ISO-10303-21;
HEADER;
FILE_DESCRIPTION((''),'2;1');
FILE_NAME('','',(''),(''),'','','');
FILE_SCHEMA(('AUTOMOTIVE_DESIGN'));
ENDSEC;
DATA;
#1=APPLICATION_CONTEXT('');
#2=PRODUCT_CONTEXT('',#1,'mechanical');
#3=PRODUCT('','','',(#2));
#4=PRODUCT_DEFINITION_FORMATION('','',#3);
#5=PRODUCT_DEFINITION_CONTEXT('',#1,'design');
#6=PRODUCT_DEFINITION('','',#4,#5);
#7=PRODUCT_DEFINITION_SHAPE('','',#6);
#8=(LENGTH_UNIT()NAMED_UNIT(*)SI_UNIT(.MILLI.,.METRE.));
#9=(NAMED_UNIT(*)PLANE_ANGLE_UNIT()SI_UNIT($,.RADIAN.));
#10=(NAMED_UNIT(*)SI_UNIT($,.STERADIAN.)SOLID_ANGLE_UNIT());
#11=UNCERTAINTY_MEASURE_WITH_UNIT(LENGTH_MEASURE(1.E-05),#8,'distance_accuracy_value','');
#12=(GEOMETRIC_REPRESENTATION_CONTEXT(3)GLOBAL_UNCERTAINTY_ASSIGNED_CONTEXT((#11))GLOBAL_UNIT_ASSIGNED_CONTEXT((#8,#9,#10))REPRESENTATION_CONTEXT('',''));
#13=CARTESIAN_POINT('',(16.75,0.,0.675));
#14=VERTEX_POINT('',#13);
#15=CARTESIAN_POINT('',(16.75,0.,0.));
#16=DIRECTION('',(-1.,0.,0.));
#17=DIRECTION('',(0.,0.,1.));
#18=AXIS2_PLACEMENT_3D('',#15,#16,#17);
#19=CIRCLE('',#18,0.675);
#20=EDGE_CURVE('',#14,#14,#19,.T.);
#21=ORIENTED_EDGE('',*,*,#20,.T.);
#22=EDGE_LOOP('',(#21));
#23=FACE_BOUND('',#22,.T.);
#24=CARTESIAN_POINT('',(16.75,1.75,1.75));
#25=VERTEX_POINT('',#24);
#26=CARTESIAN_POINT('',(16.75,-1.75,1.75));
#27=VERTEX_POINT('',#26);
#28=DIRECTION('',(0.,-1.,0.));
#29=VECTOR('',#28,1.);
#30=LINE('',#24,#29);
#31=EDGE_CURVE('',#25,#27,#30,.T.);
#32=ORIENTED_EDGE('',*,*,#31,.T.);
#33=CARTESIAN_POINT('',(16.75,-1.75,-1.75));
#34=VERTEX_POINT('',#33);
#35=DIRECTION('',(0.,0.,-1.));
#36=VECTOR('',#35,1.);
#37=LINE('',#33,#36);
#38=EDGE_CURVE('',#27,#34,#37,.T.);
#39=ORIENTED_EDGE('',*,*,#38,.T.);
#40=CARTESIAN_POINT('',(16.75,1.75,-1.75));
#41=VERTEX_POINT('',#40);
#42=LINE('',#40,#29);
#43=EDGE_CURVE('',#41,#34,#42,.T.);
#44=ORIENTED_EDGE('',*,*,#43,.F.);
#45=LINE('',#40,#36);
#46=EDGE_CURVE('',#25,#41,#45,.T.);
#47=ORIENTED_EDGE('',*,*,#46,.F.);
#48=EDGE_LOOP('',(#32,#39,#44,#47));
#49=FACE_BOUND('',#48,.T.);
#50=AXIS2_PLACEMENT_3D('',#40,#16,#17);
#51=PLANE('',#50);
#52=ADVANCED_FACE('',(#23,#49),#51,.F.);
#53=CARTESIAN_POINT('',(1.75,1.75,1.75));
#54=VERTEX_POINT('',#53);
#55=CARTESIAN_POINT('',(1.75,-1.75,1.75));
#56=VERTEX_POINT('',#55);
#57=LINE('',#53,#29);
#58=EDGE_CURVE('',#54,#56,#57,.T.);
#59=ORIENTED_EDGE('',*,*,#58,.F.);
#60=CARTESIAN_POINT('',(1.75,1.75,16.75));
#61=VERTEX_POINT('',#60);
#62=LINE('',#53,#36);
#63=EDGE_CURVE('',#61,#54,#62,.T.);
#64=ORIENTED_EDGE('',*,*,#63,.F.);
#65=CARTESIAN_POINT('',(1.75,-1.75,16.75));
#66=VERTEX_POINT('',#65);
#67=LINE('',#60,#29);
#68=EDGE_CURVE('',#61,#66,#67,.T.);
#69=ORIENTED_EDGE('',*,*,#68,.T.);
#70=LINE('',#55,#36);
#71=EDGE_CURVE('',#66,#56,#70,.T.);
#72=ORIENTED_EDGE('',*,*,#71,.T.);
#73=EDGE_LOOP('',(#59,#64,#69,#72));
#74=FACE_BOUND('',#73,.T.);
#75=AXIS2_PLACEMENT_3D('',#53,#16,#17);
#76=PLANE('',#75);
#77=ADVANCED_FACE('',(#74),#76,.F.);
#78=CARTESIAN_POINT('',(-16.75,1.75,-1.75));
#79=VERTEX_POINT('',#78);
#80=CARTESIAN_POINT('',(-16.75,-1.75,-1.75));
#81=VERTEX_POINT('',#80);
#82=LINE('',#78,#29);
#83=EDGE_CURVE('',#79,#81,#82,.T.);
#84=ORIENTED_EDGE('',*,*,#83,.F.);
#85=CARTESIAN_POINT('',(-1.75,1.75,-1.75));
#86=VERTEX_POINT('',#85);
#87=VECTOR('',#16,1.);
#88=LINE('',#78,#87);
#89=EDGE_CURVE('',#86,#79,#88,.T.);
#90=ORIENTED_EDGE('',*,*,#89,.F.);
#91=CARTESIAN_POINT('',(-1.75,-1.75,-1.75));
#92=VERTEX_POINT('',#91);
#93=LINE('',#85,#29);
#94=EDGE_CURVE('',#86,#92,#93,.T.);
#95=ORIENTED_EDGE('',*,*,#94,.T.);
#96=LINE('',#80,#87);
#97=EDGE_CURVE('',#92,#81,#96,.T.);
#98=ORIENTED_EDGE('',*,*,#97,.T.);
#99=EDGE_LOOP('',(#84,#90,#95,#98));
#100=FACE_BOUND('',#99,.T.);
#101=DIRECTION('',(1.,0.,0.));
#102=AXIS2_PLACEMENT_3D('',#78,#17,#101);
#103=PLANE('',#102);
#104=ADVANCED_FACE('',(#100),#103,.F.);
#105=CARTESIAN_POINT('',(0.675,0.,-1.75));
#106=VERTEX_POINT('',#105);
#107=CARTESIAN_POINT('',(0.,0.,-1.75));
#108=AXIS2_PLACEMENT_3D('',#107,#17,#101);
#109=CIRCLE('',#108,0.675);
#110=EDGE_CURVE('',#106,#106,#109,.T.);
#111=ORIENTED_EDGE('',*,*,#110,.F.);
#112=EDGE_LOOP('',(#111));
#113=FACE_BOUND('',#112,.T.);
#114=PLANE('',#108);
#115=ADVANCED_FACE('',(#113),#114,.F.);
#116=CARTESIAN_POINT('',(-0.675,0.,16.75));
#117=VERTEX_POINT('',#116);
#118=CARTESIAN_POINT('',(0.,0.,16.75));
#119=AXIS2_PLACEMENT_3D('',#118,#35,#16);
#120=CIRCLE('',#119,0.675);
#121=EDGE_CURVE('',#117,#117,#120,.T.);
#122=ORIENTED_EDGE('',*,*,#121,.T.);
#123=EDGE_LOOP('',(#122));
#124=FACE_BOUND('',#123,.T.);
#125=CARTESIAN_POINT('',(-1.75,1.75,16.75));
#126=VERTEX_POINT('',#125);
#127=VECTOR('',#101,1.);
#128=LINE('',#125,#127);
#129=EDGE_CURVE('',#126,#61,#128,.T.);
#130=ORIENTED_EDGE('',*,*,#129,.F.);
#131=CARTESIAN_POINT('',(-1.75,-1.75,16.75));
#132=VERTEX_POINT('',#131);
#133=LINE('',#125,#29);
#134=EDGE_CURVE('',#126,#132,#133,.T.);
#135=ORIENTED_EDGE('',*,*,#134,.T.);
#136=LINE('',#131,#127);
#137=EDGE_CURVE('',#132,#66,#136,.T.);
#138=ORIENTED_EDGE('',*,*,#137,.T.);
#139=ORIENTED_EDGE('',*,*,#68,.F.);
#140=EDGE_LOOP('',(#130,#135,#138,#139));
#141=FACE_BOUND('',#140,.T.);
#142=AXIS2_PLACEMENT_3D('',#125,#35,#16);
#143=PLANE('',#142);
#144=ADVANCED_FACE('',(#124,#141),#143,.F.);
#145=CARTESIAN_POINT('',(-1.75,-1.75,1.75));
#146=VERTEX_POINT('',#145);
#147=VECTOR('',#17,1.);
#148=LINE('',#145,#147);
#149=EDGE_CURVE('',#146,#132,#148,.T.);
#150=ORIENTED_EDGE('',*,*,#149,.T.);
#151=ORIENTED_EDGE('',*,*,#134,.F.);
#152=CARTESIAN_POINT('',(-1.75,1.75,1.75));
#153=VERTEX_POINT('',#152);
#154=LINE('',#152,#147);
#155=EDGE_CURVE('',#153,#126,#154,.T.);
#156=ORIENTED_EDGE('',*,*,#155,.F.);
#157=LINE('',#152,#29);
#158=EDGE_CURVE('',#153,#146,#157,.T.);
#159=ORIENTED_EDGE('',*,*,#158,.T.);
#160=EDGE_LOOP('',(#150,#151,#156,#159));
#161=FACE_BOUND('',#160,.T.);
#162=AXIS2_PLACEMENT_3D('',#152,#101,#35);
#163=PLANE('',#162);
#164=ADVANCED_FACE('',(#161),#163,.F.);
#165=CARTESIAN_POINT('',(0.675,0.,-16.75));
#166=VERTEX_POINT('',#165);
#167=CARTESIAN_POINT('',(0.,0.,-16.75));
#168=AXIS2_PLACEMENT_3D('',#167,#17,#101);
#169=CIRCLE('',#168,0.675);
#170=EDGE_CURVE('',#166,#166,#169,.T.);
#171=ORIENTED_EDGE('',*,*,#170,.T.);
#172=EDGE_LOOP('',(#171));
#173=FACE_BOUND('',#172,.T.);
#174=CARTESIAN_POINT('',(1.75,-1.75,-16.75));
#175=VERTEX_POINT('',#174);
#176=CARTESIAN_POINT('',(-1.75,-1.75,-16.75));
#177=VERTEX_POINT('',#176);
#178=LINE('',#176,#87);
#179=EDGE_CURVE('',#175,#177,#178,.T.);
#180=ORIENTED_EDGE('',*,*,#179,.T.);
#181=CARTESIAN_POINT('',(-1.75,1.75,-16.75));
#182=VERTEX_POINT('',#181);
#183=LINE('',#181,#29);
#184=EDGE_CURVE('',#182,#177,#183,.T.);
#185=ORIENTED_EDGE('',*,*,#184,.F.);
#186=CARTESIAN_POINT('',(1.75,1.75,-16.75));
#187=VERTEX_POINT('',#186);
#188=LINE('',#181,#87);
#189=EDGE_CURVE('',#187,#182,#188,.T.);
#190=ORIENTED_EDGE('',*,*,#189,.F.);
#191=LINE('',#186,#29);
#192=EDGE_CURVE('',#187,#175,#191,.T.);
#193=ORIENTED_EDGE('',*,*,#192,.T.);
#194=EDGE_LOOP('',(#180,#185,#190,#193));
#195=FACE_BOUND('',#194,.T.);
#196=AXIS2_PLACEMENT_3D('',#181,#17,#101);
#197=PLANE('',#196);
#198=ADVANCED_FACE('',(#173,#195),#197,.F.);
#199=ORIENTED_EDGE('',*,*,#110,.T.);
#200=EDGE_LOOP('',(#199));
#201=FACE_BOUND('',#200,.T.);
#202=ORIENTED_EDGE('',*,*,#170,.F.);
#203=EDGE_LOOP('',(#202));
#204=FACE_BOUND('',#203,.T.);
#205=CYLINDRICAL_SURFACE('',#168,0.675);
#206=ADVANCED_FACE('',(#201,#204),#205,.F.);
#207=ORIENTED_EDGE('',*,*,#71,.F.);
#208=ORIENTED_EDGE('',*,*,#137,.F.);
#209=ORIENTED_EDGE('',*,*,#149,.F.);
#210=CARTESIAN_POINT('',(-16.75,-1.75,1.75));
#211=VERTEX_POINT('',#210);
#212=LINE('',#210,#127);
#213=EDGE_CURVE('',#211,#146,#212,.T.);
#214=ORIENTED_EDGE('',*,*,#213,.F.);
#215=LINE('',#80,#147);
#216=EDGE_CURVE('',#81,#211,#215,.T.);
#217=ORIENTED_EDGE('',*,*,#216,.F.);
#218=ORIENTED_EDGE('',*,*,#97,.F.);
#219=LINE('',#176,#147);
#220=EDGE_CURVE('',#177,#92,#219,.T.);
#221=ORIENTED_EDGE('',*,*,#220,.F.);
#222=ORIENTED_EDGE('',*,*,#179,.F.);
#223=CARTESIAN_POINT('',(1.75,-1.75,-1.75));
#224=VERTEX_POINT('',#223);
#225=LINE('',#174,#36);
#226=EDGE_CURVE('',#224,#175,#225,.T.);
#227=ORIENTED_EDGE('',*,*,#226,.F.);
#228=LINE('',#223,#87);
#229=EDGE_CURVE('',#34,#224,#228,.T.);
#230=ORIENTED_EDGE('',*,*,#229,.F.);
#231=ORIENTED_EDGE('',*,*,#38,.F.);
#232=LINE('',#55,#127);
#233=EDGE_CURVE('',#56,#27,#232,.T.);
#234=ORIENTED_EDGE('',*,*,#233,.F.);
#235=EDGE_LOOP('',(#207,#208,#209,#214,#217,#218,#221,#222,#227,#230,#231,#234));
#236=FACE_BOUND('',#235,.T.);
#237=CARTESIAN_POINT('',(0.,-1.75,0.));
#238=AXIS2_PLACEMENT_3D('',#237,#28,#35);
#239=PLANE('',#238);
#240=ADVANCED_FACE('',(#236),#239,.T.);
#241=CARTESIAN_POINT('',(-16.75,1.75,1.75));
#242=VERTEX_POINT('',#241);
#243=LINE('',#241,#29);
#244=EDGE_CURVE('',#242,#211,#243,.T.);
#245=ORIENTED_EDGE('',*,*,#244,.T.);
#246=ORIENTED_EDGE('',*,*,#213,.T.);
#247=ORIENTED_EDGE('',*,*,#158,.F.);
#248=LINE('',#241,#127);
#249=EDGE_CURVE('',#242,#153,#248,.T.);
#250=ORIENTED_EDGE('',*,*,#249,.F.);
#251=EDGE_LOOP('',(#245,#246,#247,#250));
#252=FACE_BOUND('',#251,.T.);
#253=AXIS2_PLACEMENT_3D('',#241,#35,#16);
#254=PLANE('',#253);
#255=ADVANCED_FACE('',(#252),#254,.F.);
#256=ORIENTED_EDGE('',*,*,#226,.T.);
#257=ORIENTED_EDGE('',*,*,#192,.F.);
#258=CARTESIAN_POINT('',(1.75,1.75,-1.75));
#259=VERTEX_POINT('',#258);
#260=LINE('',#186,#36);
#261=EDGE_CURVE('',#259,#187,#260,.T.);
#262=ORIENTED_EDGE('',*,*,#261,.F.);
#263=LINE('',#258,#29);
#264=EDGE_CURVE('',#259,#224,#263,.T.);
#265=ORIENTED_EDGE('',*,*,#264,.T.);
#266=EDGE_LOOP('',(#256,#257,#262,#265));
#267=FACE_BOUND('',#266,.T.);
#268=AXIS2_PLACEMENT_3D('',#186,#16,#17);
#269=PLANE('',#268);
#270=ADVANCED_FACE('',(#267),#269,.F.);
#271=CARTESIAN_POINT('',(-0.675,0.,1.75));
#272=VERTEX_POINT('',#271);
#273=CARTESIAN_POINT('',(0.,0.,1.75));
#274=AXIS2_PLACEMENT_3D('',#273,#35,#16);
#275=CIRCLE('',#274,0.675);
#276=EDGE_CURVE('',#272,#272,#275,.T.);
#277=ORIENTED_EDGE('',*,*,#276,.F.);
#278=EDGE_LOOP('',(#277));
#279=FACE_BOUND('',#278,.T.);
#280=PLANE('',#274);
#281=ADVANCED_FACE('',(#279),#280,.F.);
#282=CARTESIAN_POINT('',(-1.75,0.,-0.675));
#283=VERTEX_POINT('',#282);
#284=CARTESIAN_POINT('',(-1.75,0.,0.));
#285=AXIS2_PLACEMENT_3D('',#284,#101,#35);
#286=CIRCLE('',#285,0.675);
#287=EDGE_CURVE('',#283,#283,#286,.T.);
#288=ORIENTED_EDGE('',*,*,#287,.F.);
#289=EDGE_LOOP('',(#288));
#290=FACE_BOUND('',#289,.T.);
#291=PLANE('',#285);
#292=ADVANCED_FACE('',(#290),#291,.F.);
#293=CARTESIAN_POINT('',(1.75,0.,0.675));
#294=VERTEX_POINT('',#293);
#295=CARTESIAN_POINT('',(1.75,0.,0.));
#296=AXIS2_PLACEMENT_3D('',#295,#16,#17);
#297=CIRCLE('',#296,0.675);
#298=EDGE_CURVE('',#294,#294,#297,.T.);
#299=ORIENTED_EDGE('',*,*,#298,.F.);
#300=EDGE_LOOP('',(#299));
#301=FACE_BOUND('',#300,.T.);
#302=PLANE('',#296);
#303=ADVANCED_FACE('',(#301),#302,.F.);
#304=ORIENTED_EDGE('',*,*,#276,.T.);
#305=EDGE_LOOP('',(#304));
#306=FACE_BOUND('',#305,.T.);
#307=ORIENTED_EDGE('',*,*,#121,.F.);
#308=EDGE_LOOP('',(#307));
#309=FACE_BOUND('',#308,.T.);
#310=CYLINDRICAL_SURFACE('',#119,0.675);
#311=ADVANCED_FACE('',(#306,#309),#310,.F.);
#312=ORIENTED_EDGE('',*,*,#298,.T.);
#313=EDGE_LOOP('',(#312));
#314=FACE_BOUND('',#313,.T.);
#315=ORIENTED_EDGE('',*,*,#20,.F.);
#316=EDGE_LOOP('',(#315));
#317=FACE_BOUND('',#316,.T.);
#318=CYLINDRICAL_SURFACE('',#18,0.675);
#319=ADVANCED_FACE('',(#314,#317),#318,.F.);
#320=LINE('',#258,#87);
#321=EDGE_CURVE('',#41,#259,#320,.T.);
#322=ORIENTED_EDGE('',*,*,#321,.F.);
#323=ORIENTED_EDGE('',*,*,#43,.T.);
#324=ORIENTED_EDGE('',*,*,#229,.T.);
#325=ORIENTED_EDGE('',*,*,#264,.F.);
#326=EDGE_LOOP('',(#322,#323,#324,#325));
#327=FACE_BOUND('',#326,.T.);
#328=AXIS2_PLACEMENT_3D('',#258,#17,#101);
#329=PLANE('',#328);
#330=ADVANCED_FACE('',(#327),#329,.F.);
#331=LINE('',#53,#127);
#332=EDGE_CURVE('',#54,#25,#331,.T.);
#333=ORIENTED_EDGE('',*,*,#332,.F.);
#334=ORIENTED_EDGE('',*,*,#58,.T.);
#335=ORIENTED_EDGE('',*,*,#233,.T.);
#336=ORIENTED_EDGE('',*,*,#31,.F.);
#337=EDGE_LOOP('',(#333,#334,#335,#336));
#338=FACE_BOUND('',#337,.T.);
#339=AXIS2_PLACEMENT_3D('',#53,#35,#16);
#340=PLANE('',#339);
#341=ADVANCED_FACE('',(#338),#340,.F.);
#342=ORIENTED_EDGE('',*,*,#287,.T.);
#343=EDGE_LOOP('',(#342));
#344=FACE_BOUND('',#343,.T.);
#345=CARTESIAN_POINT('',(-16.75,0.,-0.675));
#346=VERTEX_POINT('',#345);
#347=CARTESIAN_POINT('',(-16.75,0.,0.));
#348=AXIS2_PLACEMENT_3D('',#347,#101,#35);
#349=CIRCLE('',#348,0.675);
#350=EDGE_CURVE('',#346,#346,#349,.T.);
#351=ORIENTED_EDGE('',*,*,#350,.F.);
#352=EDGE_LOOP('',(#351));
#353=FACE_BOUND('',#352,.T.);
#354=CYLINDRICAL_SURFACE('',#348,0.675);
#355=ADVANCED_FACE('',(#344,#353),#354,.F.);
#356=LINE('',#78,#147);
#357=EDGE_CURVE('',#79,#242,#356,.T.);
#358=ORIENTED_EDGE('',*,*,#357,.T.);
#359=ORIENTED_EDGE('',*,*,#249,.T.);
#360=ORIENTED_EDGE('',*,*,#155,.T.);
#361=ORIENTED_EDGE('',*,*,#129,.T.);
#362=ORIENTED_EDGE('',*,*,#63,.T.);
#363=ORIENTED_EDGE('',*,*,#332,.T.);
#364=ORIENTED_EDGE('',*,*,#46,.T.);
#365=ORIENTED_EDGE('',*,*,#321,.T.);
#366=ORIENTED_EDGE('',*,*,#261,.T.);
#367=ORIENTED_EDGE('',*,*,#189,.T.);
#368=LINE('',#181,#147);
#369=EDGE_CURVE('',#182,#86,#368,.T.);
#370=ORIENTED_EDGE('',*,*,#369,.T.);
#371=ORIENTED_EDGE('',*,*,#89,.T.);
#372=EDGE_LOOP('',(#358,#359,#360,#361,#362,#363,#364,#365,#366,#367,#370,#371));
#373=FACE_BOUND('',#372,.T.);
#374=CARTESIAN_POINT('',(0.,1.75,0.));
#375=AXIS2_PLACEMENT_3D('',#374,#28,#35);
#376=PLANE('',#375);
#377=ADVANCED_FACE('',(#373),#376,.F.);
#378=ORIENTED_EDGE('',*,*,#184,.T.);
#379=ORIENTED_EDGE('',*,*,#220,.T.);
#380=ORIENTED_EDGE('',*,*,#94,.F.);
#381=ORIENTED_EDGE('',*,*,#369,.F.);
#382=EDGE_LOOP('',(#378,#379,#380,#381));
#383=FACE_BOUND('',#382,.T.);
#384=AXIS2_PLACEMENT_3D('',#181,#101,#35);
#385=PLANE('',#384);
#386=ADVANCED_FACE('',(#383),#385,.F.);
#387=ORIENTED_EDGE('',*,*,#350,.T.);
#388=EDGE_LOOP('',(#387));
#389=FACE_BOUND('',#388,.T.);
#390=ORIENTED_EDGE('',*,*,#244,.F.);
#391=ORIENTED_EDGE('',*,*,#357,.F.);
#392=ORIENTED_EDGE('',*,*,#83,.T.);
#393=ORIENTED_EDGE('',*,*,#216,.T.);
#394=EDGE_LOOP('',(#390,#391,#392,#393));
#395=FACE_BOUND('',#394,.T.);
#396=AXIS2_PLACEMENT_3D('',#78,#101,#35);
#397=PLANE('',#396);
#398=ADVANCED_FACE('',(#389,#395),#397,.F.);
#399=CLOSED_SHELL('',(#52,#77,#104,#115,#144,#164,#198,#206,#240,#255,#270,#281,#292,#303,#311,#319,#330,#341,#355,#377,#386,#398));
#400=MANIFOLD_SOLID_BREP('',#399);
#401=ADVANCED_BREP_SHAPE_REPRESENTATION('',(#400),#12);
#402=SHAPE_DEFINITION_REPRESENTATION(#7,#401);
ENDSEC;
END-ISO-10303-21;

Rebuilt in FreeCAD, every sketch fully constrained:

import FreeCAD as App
import Part
import Sketcher
from FreeCAD import Vector
Q = App.Units.Quantity

doc = App.newDocument("Part")
body = doc.addObject("PartDesign::Body", "Body")

# Sketch on XZ plane
sketch1 = body.newObject("Sketcher::SketchObject", "Sketch")
sketch1.AttachmentSupport = (doc.getObject("XZ_Plane"), [""])
sketch1.MapMode = "FlatFace"
sketch1.addGeometry(Part.LineSegment(Vector(1.75, 16.75, 0), Vector(1.75, 1.75, 0)), False)
sketch1.addGeometry(Part.LineSegment(Vector(1.75, 1.75, 0), Vector(16.75, 1.75, 0)), False)
sketch1.addGeometry(Part.LineSegment(Vector(16.75, 1.75, 0), Vector(16.75, -1.75, 0)), False)
sketch1.addGeometry(Part.LineSegment(Vector(16.75, -1.75, 0), Vector(1.75, -1.75, 0)), False)
sketch1.addGeometry(Part.LineSegment(Vector(1.75, -1.75, 0), Vector(1.75, -16.75, 0)), False)
sketch1.addGeometry(Part.LineSegment(Vector(1.75, -16.75, 0), Vector(-1.75, -16.75, 0)), False)
sketch1.addGeometry(Part.LineSegment(Vector(-1.75, -16.75, 0), Vector(-1.75, -1.75, 0)), False)
sketch1.addGeometry(Part.LineSegment(Vector(-1.75, -1.75, 0), Vector(-16.75, -1.75, 0)), False)
sketch1.addGeometry(Part.LineSegment(Vector(-16.75, -1.75, 0), Vector(-16.75, 1.75, 0)), False)
sketch1.addGeometry(Part.LineSegment(Vector(-16.75, 1.75, 0), Vector(-1.75, 1.75, 0)), False)
sketch1.addGeometry(Part.LineSegment(Vector(-1.75, 1.75, 0), Vector(-1.75, 16.75, 0)), False)
sketch1.addGeometry(Part.LineSegment(Vector(-1.75, 16.75, 0), Vector(1.75, 16.75, 0)), False)
sketch1.addConstraint(Sketcher.Constraint("Coincident", 0, 2, 1, 1))
sketch1.addConstraint(Sketcher.Constraint("Coincident", 1, 2, 2, 1))
sketch1.addConstraint(Sketcher.Constraint("Coincident", 2, 2, 3, 1))
sketch1.addConstraint(Sketcher.Constraint("Coincident", 3, 2, 4, 1))
sketch1.addConstraint(Sketcher.Constraint("Coincident", 4, 2, 5, 1))
sketch1.addConstraint(Sketcher.Constraint("Coincident", 5, 2, 6, 1))
sketch1.addConstraint(Sketcher.Constraint("Coincident", 6, 2, 7, 1))
sketch1.addConstraint(Sketcher.Constraint("Coincident", 7, 2, 8, 1))
sketch1.addConstraint(Sketcher.Constraint("Coincident", 8, 2, 9, 1))
sketch1.addConstraint(Sketcher.Constraint("Coincident", 9, 2, 10, 1))
sketch1.addConstraint(Sketcher.Constraint("Coincident", 10, 2, 11, 1))
sketch1.addConstraint(Sketcher.Constraint("Coincident", 11, 2, 0, 1))
sketch1.addConstraint(Sketcher.Constraint("Vertical", 0))
sketch1.addConstraint(Sketcher.Constraint("Horizontal", 1))
sketch1.addConstraint(Sketcher.Constraint("Vertical", 2))
sketch1.addConstraint(Sketcher.Constraint("Horizontal", 3))
sketch1.addConstraint(Sketcher.Constraint("Vertical", 4))
sketch1.addConstraint(Sketcher.Constraint("Horizontal", 5))
sketch1.addConstraint(Sketcher.Constraint("Vertical", 6))
sketch1.addConstraint(Sketcher.Constraint("Horizontal", 7))
sketch1.addConstraint(Sketcher.Constraint("Vertical", 8))
sketch1.addConstraint(Sketcher.Constraint("Horizontal", 9))
sketch1.addConstraint(Sketcher.Constraint("Vertical", 10))
sketch1.addConstraint(Sketcher.Constraint("Horizontal", 11))
sketch1.addConstraint(Sketcher.Constraint("Symmetric", 0, 2, 6, 2, -1, 1))
sketch1.addConstraint(Sketcher.Constraint("Symmetric", 2, 2, 8, 2, -1, 1))
sketch1.addConstraint(Sketcher.Constraint("Symmetric", 4, 2, 10, 2, -1, 1))
sketch1.addConstraint(Sketcher.Constraint("Symmetric", 3, 2, 6, 2, -2))
sketch1.addConstraint(Sketcher.Constraint("Equal", 9, 0))
sketch1.addConstraint(Sketcher.Constraint("Equal", 11, 2))
sketch1.addConstraint(Sketcher.Constraint("DistanceX", 1, 1, 1, 2, Q("15 mm")))
sketch1.addConstraint(Sketcher.Constraint("DistanceX", 5, 2, 5, 1, Q("3.5 mm")))
pad1 = body.newObject("PartDesign::Pad", "Pad")
pad1.Profile = sketch1
pad1.Length = 3.5
pad1.Midplane = True

# Sketch on XY plane
sketch2 = body.newObject("Sketcher::SketchObject", "Sketch001")
sketch2.AttachmentSupport = (doc.getObject("XY_Plane"), [""])
sketch2.MapMode = "FlatFace"
sketch2.AttachmentOffset = App.Placement(Vector(0, 0, -1.75), App.Rotation())
sketch2.addGeometry(Part.Circle(Vector(0, 0, 0), Vector(0, 0, 1), 0.675), False)
sketch2.addConstraint(Sketcher.Constraint("Coincident", 0, 3, -1, 1))
sketch2.addConstraint(Sketcher.Constraint("Diameter", 0, Q("1.35 mm")))
pocket1 = body.newObject("PartDesign::Pocket", "Pocket")
pocket1.Profile = sketch2
pocket1.Type = "ThroughAll"

# Sketch on XY plane
sketch3 = body.newObject("Sketcher::SketchObject", "Sketch002")
sketch3.AttachmentSupport = (doc.getObject("XY_Plane"), [""])
sketch3.MapMode = "FlatFace"
sketch3.AttachmentOffset = App.Placement(Vector(0, 0, 1.75), App.Rotation())
sketch3.addGeometry(Part.Circle(Vector(0, 0, 0), Vector(0, 0, 1), 0.675), False)
sketch3.addConstraint(Sketcher.Constraint("Coincident", 0, 3, -1, 1))
sketch3.addConstraint(Sketcher.Constraint("Diameter", 0, Q("1.35 mm")))
pocket2 = body.newObject("PartDesign::Pocket", "Pocket001")
pocket2.Profile = sketch3
pocket2.Type = "ThroughAll"
pocket2.Reversed = True

# Sketch on YZ plane
sketch4 = body.newObject("Sketcher::SketchObject", "Sketch003")
sketch4.AttachmentSupport = (doc.getObject("YZ_Plane"), [""])
sketch4.MapMode = "FlatFace"
sketch4.AttachmentOffset = App.Placement(Vector(0, 0, -1.75), App.Rotation())
sketch4.addGeometry(Part.Circle(Vector(0, 0, 0), Vector(0, 0, 1), 0.675), False)
sketch4.addConstraint(Sketcher.Constraint("Coincident", 0, 3, -1, 1))
sketch4.addConstraint(Sketcher.Constraint("Diameter", 0, Q("1.35 mm")))
pocket3 = body.newObject("PartDesign::Pocket", "Pocket002")
pocket3.Profile = sketch4
pocket3.Type = "ThroughAll"

# Sketch on YZ plane
sketch5 = body.newObject("Sketcher::SketchObject", "Sketch004")
sketch5.AttachmentSupport = (doc.getObject("YZ_Plane"), [""])
sketch5.MapMode = "FlatFace"
sketch5.AttachmentOffset = App.Placement(Vector(0, 0, 1.75), App.Rotation())
sketch5.addGeometry(Part.Circle(Vector(0, 0, 0), Vector(0, 0, 1), 0.675), False)
sketch5.addConstraint(Sketcher.Constraint("Coincident", 0, 3, -1, 1))
sketch5.addConstraint(Sketcher.Constraint("Diameter", 0, Q("1.35 mm")))
pocket4 = body.newObject("PartDesign::Pocket", "Pocket003")
pocket4.Profile = sketch5
pocket4.Type = "ThroughAll"
pocket4.Reversed = True

doc.recompute()
